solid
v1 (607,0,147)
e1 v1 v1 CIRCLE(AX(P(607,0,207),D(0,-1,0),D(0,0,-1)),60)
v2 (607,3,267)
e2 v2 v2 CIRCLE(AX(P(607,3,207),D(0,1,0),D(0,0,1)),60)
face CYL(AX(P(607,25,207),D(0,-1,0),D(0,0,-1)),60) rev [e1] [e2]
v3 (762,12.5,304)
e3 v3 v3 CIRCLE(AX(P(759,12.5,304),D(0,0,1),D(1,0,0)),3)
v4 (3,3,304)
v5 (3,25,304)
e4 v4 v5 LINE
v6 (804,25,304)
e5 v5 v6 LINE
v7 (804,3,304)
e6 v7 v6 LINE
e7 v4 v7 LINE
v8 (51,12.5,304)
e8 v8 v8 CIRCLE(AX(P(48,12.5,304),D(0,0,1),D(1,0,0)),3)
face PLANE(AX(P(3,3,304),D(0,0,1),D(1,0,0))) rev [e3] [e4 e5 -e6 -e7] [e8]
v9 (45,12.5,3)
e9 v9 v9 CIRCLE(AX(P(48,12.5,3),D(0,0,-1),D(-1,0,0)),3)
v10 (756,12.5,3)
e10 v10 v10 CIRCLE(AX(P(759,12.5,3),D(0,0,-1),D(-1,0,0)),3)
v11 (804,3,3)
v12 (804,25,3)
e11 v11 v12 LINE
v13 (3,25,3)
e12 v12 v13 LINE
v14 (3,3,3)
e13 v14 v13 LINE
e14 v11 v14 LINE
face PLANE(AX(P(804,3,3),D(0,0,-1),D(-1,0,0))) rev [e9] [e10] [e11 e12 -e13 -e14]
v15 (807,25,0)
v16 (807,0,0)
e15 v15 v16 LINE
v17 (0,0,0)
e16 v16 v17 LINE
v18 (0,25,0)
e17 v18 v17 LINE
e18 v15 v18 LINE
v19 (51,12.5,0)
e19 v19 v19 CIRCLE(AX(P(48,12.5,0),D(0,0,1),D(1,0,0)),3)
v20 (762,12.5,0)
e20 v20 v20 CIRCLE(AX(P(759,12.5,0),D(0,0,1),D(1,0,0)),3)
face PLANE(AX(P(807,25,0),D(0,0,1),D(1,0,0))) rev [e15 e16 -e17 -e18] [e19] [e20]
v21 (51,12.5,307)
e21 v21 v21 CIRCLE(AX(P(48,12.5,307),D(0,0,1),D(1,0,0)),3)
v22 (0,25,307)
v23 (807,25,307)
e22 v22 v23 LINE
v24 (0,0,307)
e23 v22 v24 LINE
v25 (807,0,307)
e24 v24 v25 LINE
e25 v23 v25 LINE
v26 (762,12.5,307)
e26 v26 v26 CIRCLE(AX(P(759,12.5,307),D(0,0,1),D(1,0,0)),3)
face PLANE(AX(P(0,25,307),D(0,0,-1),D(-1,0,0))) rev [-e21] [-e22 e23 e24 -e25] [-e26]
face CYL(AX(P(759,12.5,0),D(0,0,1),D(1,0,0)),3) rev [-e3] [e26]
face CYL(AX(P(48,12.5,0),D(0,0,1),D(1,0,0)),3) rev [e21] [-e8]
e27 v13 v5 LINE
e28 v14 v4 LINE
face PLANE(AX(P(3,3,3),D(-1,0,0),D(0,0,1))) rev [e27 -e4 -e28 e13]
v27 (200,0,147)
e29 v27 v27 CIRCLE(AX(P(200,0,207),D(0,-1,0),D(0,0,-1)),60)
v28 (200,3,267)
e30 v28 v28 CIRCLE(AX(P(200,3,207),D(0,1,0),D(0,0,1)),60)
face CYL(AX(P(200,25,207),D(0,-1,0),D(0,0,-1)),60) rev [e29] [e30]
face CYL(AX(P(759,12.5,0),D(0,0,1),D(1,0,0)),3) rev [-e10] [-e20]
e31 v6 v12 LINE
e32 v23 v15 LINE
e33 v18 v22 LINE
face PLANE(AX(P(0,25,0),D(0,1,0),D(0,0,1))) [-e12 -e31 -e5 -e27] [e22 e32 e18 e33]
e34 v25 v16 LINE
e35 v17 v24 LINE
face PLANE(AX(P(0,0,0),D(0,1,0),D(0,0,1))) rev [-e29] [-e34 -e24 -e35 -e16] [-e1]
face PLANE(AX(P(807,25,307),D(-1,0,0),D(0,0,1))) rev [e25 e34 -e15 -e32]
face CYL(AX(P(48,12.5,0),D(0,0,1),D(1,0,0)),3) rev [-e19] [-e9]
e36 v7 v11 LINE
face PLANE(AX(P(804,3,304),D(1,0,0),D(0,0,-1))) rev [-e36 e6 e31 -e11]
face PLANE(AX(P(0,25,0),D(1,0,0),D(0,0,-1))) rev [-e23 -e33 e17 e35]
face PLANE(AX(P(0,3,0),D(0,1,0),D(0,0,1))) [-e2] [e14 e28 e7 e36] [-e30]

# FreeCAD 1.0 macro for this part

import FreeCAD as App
import Part
import Sketcher

V = App.Vector
Q = App.Units.Quantity

doc = App.newDocument("Part")
body = doc.addObject("PartDesign::Body", "Body")

# Sketch on XZ plane
sketch1 = body.newObject("Sketcher::SketchObject", "Sketch")
sketch1.AttachmentSupport = (doc.getObject("XZ_Plane"), [""])
sketch1.MapMode = "FlatFace"
sketch1.addGeometry([
    Part.LineSegment(V(0, 0, 0), V(0, 307, 0)),
    Part.LineSegment(V(0, 307, 0), V(807, 307, 0)),
    Part.LineSegment(V(807, 307, 0), V(807, 0, 0)),
    Part.LineSegment(V(807, 0, 0), V(0, 0, 0)),
], False)
sketch1.addConstraint([
    Sketcher.Constraint("Coincident", 0, 2, 1, 1),
    Sketcher.Constraint("Coincident", 1, 2, 2, 1),
    Sketcher.Constraint("Coincident", 2, 2, 3, 1),
    Sketcher.Constraint("Coincident", 3, 2, 0, 1),
    Sketcher.Constraint("Vertical", 0),
    Sketcher.Constraint("Horizontal", 1),
    Sketcher.Constraint("Vertical", 2),
    Sketcher.Constraint("Horizontal", 3),
    Sketcher.Constraint("Coincident", 3, 2, -1, 1),
    Sketcher.Constraint("DistanceX", 1, 1, 1, 2, Q("807 mm")),
    Sketcher.Constraint("DistanceY", 0, 1, 0, 2, Q("307 mm")),
])
pad1 = body.newObject("PartDesign::Pad", "Pad")
pad1.Profile = sketch1
pad1.Length = 25
pad1.Reversed = True

# Sketch on XZ plane
sketch2 = body.newObject("Sketcher::SketchObject", "Sketch001")
sketch2.AttachmentSupport = (doc.getObject("XZ_Plane"), [""])
sketch2.MapMode = "FlatFace"
sketch2.AttachmentOffset = App.Placement(V(0, 0, -25), App.Rotation())
sketch2.addGeometry([
    Part.LineSegment(V(3, 3, 0), V(3, 304, 0)),
    Part.LineSegment(V(3, 304, 0), V(804, 304, 0)),
    Part.LineSegment(V(804, 304, 0), V(804, 3, 0)),
    Part.LineSegment(V(804, 3, 0), V(3, 3, 0)),
], False)
sketch2.addConstraint([
    Sketcher.Constraint("Coincident", 0, 2, 1, 1),
    Sketcher.Constraint("Coincident", 1, 2, 2, 1),
    Sketcher.Constraint("Coincident", 2, 2, 3, 1),
    Sketcher.Constraint("Coincident", 3, 2, 0, 1),
    Sketcher.Constraint("Vertical", 0),
    Sketcher.Constraint("Horizontal", 1),
    Sketcher.Constraint("Vertical", 2),
    Sketcher.Constraint("Horizontal", 3),
    Sketcher.Constraint("DistanceX", 1, 1, 1, 2, Q("801 mm")),
    Sketcher.Constraint("DistanceY", 0, 1, 0, 2, Q("301 mm")),
    Sketcher.Constraint("DistanceX", -1, 1, 0, 2, Q("3 mm")),
    Sketcher.Constraint("DistanceY", -1, 1, 0, 2, Q("304 mm")),
])
pocket1 = body.newObject("PartDesign::Pocket", "Pocket")
pocket1.Profile = sketch2
pocket1.Length = 22
pocket1.Reversed = True

# Sketch on XY plane
sketch3 = body.newObject("Sketcher::SketchObject", "Sketch002")
sketch3.AttachmentSupport = (doc.getObject("XY_Plane"), [""])
sketch3.MapMode = "FlatFace"
sketch3.AttachmentOffset = App.Placement(V(0, 0, 307), App.Rotation())
sketch3.addGeometry([
    Part.Circle(V(759, 12.5, 0), V(0, 0, 1), 3),
    Part.Circle(V(48, 12.5, 0), V(0, 0, 1), 3),
], False)
sketch3.addConstraint([
    Sketcher.Constraint("Equal", 0, 1),
    Sketcher.Constraint("Horizontal", 0, 3, 1, 3),
    Sketcher.Constraint("Diameter", 0, Q("6 mm")),
    Sketcher.Constraint("DistanceX", -1, 1, 0, 3, Q("759 mm")),
    Sketcher.Constraint("DistanceX", -1, 1, 1, 3, Q("48 mm")),
    Sketcher.Constraint("DistanceY", -1, 1, 0, 3, Q("12.5 mm")),
])
pocket2 = body.newObject("PartDesign::Pocket", "Pocket001")
pocket2.Profile = sketch3
pocket2.Type = "ThroughAll"

# Sketch on XZ plane
sketch4 = body.newObject("Sketcher::SketchObject", "Sketch003")
sketch4.AttachmentSupport = (doc.getObject("XZ_Plane"), [""])
sketch4.MapMode = "FlatFace"
sketch4.addGeometry([
    Part.Circle(V(607, 207, 0), V(0, 0, 1), 60),
    Part.Circle(V(200, 207, 0), V(0, 0, 1), 60),
], False)
sketch4.addConstraint([
    Sketcher.Constraint("Equal", 0, 1),
    Sketcher.Constraint("Horizontal", 0, 3, 1, 3),
    Sketcher.Constraint("Diameter", 0, Q("120 mm")),
    Sketcher.Constraint("DistanceX", -1, 1, 0, 3, Q("607 mm")),
    Sketcher.Constraint("DistanceY", -1, 1, 0, 3, Q("207 mm")),
    Sketcher.Constraint("DistanceX", -1, 1, 1, 3, Q("200 mm")),
])
pocket3 = body.newObject("PartDesign::Pocket", "Pocket002")
pocket3.Profile = sketch4
pocket3.Type = "ThroughAll"

doc.recompute()
